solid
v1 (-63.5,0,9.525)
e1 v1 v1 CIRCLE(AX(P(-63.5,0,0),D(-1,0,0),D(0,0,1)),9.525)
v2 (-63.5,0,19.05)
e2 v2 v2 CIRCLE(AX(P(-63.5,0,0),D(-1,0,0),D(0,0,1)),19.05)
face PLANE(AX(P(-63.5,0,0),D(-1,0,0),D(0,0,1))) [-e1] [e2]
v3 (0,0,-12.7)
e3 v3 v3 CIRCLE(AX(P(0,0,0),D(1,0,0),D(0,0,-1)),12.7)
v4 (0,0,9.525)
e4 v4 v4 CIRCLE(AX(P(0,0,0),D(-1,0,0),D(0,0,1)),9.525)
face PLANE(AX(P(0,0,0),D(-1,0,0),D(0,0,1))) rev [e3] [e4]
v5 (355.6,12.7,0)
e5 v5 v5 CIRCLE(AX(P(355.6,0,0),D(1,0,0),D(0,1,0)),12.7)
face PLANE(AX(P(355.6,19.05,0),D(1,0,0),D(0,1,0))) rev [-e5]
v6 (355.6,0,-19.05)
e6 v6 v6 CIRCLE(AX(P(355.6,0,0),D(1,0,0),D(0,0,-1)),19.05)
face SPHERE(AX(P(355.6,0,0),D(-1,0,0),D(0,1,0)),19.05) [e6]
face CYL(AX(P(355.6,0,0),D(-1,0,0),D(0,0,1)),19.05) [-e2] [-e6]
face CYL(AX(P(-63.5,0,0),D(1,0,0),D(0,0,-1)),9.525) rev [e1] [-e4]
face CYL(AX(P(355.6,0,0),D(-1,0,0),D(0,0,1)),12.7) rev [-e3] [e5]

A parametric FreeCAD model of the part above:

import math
import FreeCAD as App
import Part
import Sketcher
from FreeCAD import Vector
Q = App.Units.Quantity

doc = App.newDocument("Part")
body = doc.addObject("PartDesign::Body", "Body")

sketch1 = body.newObject("Sketcher::SketchObject", "Sketch")
sketch1.AttachmentSupport = (doc.getObject("YZ_Plane"), [""])
sketch1.MapMode = "FlatFace"
sketch1.addGeometry([
    Part.Circle(Vector(0, 0, 0), Vector(0, 0, 1), 19),
    Part.Circle(Vector(0, 0, 0), Vector(0, 0, 1), 13),
], False)
sketch1.addConstraint([
    Sketcher.Constraint("Coincident", 0, 3, -1, 1),
    Sketcher.Constraint("Coincident", 1, 3, -1, 1),
    Sketcher.Constraint("Diameter", 1, Q("1 in")),
    Sketcher.Constraint("Diameter", 0, Q("1.5 in")),
])
pad1 = body.newObject("PartDesign::Pad", "Pad")
pad1.Profile = sketch1
pad1.Length = Q("14 in")

sketch2 = body.newObject("Sketcher::SketchObject", "Sketch001")
sketch2.AttachmentSupport = (doc.getObject("XY_Plane"), [""])
sketch2.MapMode = "FlatFace"
sketch2.addGeometry([
    Part.LineSegment(Vector(356, 19, 0), Vector(356, 0, 0)),
    Part.LineSegment(Vector(356, 0, 0), Vector(375, 0, 0)),
    Part.ArcOfCircle(Part.Circle(Vector(356, 0, 0), Vector(0, 0, 1), 19), math.radians(0), math.radians(90)),
], False)
sketch2.addConstraint([
    Sketcher.Constraint("Coincident", 0, 2, 1, 1),
    Sketcher.Constraint("Coincident", 1, 2, 2, 1),
    Sketcher.Constraint("Coincident", 2, 2, 0, 1),
    Sketcher.Constraint("Vertical", 0),
    Sketcher.Constraint("Horizontal", 1),
    Sketcher.Constraint("Coincident", 0, 2, 2, 3),
    Sketcher.Constraint("PointOnObject", 2, 3, -1),
    Sketcher.Constraint("Radius", 2, Q("0.75 in")),
    Sketcher.Constraint("DistanceX", -1, 1, 2, 3, Q("14 in")),
])
revolution = body.newObject("PartDesign::Revolution", "Revolution")
revolution.Profile = sketch2
revolution.ReferenceAxis = (sketch2, ["H_Axis"])
revolution.Angle = 360

sketch3 = body.newObject("Sketcher::SketchObject", "Sketch002")
sketch3.AttachmentSupport = (doc.getObject("YZ_Plane"), [""])
sketch3.MapMode = "FlatFace"
sketch3.AttachmentOffset = App.Placement(Vector(0, 0, -2.5 * 25.4), App.Rotation())
sketch3.addGeometry([
    Part.Circle(Vector(0, 0, 0), Vector(0, 0, 1), 19),
    Part.Circle(Vector(0, 0, 0), Vector(0, 0, 1), 10),
], False)
sketch3.addConstraint([
    Sketcher.Constraint("Coincident", 0, 3, -1, 1),
    Sketcher.Constraint("Coincident", 1, 3, -1, 1),
    Sketcher.Constraint("Diameter", 0, Q("1.5 in")),
    Sketcher.Constraint("Diameter", 1, Q("0.75 in")),
])
pad2 = body.newObject("PartDesign::Pad", "Pad001")
pad2.Profile = sketch3
pad2.Length = Q("2.5 in")

doc.recompute()
